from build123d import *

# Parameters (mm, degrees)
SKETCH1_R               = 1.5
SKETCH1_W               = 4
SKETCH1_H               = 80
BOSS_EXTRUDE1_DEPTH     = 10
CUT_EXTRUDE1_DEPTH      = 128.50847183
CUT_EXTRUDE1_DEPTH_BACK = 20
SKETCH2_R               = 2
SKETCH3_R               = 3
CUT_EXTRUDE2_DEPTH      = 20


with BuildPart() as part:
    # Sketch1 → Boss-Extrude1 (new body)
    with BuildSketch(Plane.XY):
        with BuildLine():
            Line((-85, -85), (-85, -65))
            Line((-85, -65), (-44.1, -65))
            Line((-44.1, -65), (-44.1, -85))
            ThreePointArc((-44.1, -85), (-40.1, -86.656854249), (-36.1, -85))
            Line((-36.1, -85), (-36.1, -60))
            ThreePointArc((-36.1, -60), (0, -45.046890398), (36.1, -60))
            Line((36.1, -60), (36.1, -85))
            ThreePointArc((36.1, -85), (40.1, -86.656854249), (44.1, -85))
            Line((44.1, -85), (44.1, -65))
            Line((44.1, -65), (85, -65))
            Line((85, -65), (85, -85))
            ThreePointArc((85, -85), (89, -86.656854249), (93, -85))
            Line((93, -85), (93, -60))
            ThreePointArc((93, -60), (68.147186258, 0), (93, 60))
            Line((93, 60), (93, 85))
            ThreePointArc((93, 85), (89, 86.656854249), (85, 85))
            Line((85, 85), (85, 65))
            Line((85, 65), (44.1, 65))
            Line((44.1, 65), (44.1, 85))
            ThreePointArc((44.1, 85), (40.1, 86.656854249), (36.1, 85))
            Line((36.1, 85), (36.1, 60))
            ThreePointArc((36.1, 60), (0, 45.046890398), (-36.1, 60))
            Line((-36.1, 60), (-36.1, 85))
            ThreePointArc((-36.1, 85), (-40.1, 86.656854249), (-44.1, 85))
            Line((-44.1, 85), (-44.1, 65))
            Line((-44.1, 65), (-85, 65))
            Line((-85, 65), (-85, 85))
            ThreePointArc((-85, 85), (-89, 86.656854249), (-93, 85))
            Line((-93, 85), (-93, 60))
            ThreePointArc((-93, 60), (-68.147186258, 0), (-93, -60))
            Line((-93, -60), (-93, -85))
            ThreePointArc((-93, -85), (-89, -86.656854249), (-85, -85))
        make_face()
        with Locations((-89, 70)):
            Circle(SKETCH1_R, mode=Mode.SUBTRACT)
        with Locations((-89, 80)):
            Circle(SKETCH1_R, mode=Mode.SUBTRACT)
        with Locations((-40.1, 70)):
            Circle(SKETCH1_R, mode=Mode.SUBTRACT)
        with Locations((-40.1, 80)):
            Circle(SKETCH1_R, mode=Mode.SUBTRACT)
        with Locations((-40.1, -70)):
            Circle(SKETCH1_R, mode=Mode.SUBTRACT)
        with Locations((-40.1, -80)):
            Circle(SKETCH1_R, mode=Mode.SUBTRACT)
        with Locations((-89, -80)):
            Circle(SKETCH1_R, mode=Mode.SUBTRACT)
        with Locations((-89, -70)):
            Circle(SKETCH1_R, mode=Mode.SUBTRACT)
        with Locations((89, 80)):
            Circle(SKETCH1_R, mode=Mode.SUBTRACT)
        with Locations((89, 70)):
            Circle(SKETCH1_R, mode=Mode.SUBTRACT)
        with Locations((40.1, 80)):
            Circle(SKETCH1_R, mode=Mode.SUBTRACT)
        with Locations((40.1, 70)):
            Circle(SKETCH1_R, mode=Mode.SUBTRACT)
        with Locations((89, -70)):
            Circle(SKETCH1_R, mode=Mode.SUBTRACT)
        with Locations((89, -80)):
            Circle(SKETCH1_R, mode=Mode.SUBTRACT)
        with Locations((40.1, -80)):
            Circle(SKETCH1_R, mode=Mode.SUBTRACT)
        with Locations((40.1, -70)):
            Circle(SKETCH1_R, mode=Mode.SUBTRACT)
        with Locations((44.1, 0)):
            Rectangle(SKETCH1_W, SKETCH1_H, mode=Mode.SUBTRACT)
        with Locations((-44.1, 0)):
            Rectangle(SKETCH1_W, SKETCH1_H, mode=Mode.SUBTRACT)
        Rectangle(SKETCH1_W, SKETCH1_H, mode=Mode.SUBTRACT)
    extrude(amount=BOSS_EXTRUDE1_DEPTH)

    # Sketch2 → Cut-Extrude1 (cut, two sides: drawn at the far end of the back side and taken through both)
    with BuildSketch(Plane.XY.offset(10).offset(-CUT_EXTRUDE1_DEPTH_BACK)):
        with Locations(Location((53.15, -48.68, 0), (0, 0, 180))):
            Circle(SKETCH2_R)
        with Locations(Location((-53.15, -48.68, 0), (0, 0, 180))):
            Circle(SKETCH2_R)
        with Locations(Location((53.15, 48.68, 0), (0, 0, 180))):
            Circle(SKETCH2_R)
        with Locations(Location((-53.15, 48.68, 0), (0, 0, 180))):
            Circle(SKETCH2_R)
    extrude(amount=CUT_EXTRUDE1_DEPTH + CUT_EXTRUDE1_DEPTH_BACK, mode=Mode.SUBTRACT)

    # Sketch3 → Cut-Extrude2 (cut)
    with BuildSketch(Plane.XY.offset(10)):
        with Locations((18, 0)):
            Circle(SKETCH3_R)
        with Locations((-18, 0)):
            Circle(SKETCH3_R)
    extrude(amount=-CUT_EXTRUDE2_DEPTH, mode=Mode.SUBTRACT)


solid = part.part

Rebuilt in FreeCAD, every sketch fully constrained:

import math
import FreeCAD as App
import Part
import Sketcher
from FreeCAD import Vector
Q = App.Units.Quantity

doc = App.newDocument("Part")
body = doc.addObject("PartDesign::Body", "Body")

# Sketch on XY plane
sketch1 = doc.addObject("Sketcher::SketchObject", "Sketch")
body.addObject(sketch1)
sketch1.AttachmentSupport = (doc.XY_Plane, [""])
sketch1.MapMode = "FlatFace"
sketch1.addGeometry(Part.LineSegment(Vector(-85, -85, 0), Vector(-85, -65, 0)), False)
sketch1.addGeometry(Part.LineSegment(Vector(-85, -65, 0), Vector(-44.1, -65, 0)), False)
sketch1.addGeometry(Part.LineSegment(Vector(-44.1, -65, 0), Vector(-44.1, -85, 0)), False)
sketch1.addGeometry(Part.ArcOfCircle(Part.Circle(Vector(-40.1, -81, 0), Vector(0, 0, 1), 5.7), math.radians(-135), math.radians(-45)), False)
sketch1.addGeometry(Part.LineSegment(Vector(-36.1, -85, 0), Vector(-36.1, -60, 0)), False)
sketch1.addGeometry(Part.ArcOfCircle(Part.Circle(Vector(0, -96.1, 0), Vector(0, 0, 1), 51.1), math.radians(45), math.radians(135)), False)
sketch1.addGeometry(Part.LineSegment(Vector(36.1, -60, 0), Vector(36.1, -85, 0)), False)
sketch1.addGeometry(Part.ArcOfCircle(Part.Circle(Vector(40.1, -81, 0), Vector(0, 0, 1), 5.7), math.radians(-135), math.radians(-45)), False)
sketch1.addGeometry(Part.LineSegment(Vector(44.1, -85, 0), Vector(44.1, -65, 0)), False)
sketch1.addGeometry(Part.LineSegment(Vector(44.1, -65, 0), Vector(85, -65, 0)), False)
sketch1.addGeometry(Part.LineSegment(Vector(85, -65, 0), Vector(85, -85, 0)), False)
sketch1.addGeometry(Part.ArcOfCircle(Part.Circle(Vector(89, -81, 0), Vector(0, 0, 1), 5.7), math.radians(-135), math.radians(-45)), False)
sketch1.addGeometry(Part.LineSegment(Vector(93, -85, 0), Vector(93, -60, 0)), False)
sketch1.addGeometry(Part.ArcOfCircle(Part.Circle(Vector(153, 0, 0), Vector(0, 0, 1), 84.9), math.radians(135), math.radians(225)), False)
sketch1.addGeometry(Part.LineSegment(Vector(93, 60, 0), Vector(93, 85, 0)), False)
sketch1.addGeometry(Part.ArcOfCircle(Part.Circle(Vector(89, 81, 0), Vector(0, 0, 1), 5.7), math.radians(45), math.radians(135)), False)
sketch1.addGeometry(Part.LineSegment(Vector(85, 85, 0), Vector(85, 65, 0)), False)
sketch1.addGeometry(Part.LineSegment(Vector(85, 65, 0), Vector(44.1, 65, 0)), False)
sketch1.addGeometry(Part.LineSegment(Vector(44.1, 65, 0), Vector(44.1, 85, 0)), False)
sketch1.addGeometry(Part.ArcOfCircle(Part.Circle(Vector(40.1, 81, 0), Vector(0, 0, 1), 5.7), math.radians(45), math.radians(135)), False)
sketch1.addGeometry(Part.LineSegment(Vector(36.1, 85, 0), Vector(36.1, 60, 0)), False)
sketch1.addGeometry(Part.ArcOfCircle(Part.Circle(Vector(0, 96.1, 0), Vector(0, 0, 1), 51.1), math.radians(-135), math.radians(-45)), False)
sketch1.addGeometry(Part.LineSegment(Vector(-36.1, 60, 0), Vector(-36.1, 85, 0)), False)
sketch1.addGeometry(Part.ArcOfCircle(Part.Circle(Vector(-40.1, 81, 0), Vector(0, 0, 1), 5.7), math.radians(45), math.radians(135)), False)
sketch1.addGeometry(Part.LineSegment(Vector(-44.1, 85, 0), Vector(-44.1, 65, 0)), False)
sketch1.addGeometry(Part.LineSegment(Vector(-44.1, 65, 0), Vector(-85, 65, 0)), False)
sketch1.addGeometry(Part.LineSegment(Vector(-85, 65, 0), Vector(-85, 85, 0)), False)
sketch1.addGeometry(Part.ArcOfCircle(Part.Circle(Vector(-89, 81, 0), Vector(0, 0, 1), 5.7), math.radians(45), math.radians(135)), False)
sketch1.addGeometry(Part.LineSegment(Vector(-93, 85, 0), Vector(-93, 60, 0)), False)
sketch1.addGeometry(Part.ArcOfCircle(Part.Circle(Vector(-153, 0, 0), Vector(0, 0, 1), 84.9), math.radians(-45), math.radians(45)), False)
sketch1.addGeometry(Part.LineSegment(Vector(-93, -60, 0), Vector(-93, -85, 0)), False)
sketch1.addGeometry(Part.ArcOfCircle(Part.Circle(Vector(-89, -81, 0), Vector(0, 0, 1), 5.7), math.radians(-135), math.radians(-45)), False)
sketch1.addGeometry(Part.Circle(Vector(-89, -80, 0), Vector(0, 0, 1), 1.5), False)
sketch1.addGeometry(Part.Circle(Vector(-89, -70, 0), Vector(0, 0, 1), 1.5), False)
sketch1.addGeometry(Part.Circle(Vector(-40.1, -80, 0), Vector(0, 0, 1), 1.5), False)
sketch1.addGeometry(Part.Circle(Vector(-40.1, -70, 0), Vector(0, 0, 1), 1.5), False)
sketch1.addGeometry(Part.Circle(Vector(40.1, -80, 0), Vector(0, 0, 1), 1.5), False)
sketch1.addGeometry(Part.Circle(Vector(40.1, -70, 0), Vector(0, 0, 1), 1.5), False)
sketch1.addGeometry(Part.Circle(Vector(89, -80, 0), Vector(0, 0, 1), 1.5), False)
sketch1.addGeometry(Part.Circle(Vector(89, -70, 0), Vector(0, 0, 1), 1.5), False)
sketch1.addGeometry(Part.LineSegment(Vector(-42.1, -40, 0), Vector(-46.1, -40, 0)), False)
sketch1.addGeometry(Part.LineSegment(Vector(-46.1, -40, 0), Vector(-46.1, 40, 0)), False)
sketch1.addGeometry(Part.LineSegment(Vector(-46.1, 40, 0), Vector(-42.1, 40, 0)), False)
sketch1.addGeometry(Part.LineSegment(Vector(-42.1, 40, 0), Vector(-42.1, -40, 0)), False)
sketch1.addGeometry(Part.Circle(Vector(-89, 70, 0), Vector(0, 0, 1), 1.5), False)
sketch1.addGeometry(Part.Circle(Vector(-89, 80, 0), Vector(0, 0, 1), 1.5), False)
sketch1.addGeometry(Part.Circle(Vector(-40.1, 70, 0), Vector(0, 0, 1), 1.5), False)
sketch1.addGeometry(Part.Circle(Vector(-40.1, 80, 0), Vector(0, 0, 1), 1.5), False)
sketch1.addGeometry(Part.LineSegment(Vector(2, -40, 0), Vector(-2, -40, 0)), False)
sketch1.addGeometry(Part.LineSegment(Vector(-2, -40, 0), Vector(-2, 40, 0)), False)
sketch1.addGeometry(Part.LineSegment(Vector(-2, 40, 0), Vector(2, 40, 0)), False)
sketch1.addGeometry(Part.LineSegment(Vector(2, 40, 0), Vector(2, -40, 0)), False)
sketch1.addGeometry(Part.LineSegment(Vector(46.1, -40, 0), Vector(42.1, -40, 0)), False)
sketch1.addGeometry(Part.LineSegment(Vector(42.1, -40, 0), Vector(42.1, 40, 0)), False)
sketch1.addGeometry(Part.LineSegment(Vector(42.1, 40, 0), Vector(46.1, 40, 0)), False)
sketch1.addGeometry(Part.LineSegment(Vector(46.1, 40, 0), Vector(46.1, -40, 0)), False)
sketch1.addGeometry(Part.Circle(Vector(40.1, 70, 0), Vector(0, 0, 1), 1.5), False)
sketch1.addGeometry(Part.Circle(Vector(40.1, 80, 0), Vector(0, 0, 1), 1.5), False)
sketch1.addGeometry(Part.Circle(Vector(89, 70, 0), Vector(0, 0, 1), 1.5), False)
sketch1.addGeometry(Part.Circle(Vector(89, 80, 0), Vector(0, 0, 1), 1.5), False)
sketch1.addConstraint(Sketcher.Constraint("Coincident", 0, 2, 1, 1))
sketch1.addConstraint(Sketcher.Constraint("Coincident", 1, 2, 2, 1))
sketch1.addConstraint(Sketcher.Constraint("Coincident", 2, 2, 3, 1))
sketch1.addConstraint(Sketcher.Constraint("Coincident", 3, 2, 4, 1))
sketch1.addConstraint(Sketcher.Constraint("Coincident", 4, 2, 5, 2))
sketch1.addConstraint(Sketcher.Constraint("Coincident", 5, 1, 6, 1))
sketch1.addConstraint(Sketcher.Constraint("Coincident", 6, 2, 7, 1))
sketch1.addConstraint(Sketcher.Constraint("Coincident", 7, 2, 8, 1))
sketch1.addConstraint(Sketcher.Constraint("Coincident", 8, 2, 9, 1))
sketch1.addConstraint(Sketcher.Constraint("Coincident", 9, 2, 10, 1))
sketch1.addConstraint(Sketcher.Constraint("Coincident", 10, 2, 11, 1))
sketch1.addConstraint(Sketcher.Constraint("Coincident", 11, 2, 12, 1))
sketch1.addConstraint(Sketcher.Constraint("Coincident", 12, 2, 13, 2))
sketch1.addConstraint(Sketcher.Constraint("Coincident", 13, 1, 14, 1))
sketch1.addConstraint(Sketcher.Constraint("Coincident", 14, 2, 15, 1))
sketch1.addConstraint(Sketcher.Constraint("Coincident", 15, 2, 16, 1))
sketch1.addConstraint(Sketcher.Constraint("Coincident", 16, 2, 17, 1))
sketch1.addConstraint(Sketcher.Constraint("Coincident", 17, 2, 18, 1))
sketch1.addConstraint(Sketcher.Constraint("Coincident", 18, 2, 19, 1))
sketch1.addConstraint(Sketcher.Constraint("Coincident", 19, 2, 20, 1))
sketch1.addConstraint(Sketcher.Constraint("Coincident", 20, 2, 21, 2))
sketch1.addConstraint(Sketcher.Constraint("Coincident", 21, 1, 22, 1))
sketch1.addConstraint(Sketcher.Constraint("Coincident", 22, 2, 23, 1))
sketch1.addConstraint(Sketcher.Constraint("Coincident", 23, 2, 24, 1))
sketch1.addConstraint(Sketcher.Constraint("Coincident", 24, 2, 25, 1))
sketch1.addConstraint(Sketcher.Constraint("Coincident", 25, 2, 26, 1))
sketch1.addConstraint(Sketcher.Constraint("Coincident", 26, 2, 27, 1))
sketch1.addConstraint(Sketcher.Constraint("Coincident", 27, 2, 28, 1))
sketch1.addConstraint(Sketcher.Constraint("Coincident", 28, 2, 29, 2))
sketch1.addConstraint(Sketcher.Constraint("Coincident", 29, 1, 30, 1))
sketch1.addConstraint(Sketcher.Constraint("Coincident", 30, 2, 31, 1))
sketch1.addConstraint(Sketcher.Constraint("Coincident", 31, 2, 0, 1))
sketch1.addConstraint(Sketcher.Constraint("Coincident", 40, 2, 41, 1))
sketch1.addConstraint(Sketcher.Constraint("Coincident", 41, 2, 42, 1))
sketch1.addConstraint(Sketcher.Constraint("Coincident", 42, 2, 43, 1))
sketch1.addConstraint(Sketcher.Constraint("Coincident", 43, 2, 40, 1))
sketch1.addConstraint(Sketcher.Constraint("Coincident", 48, 2, 49, 1))
sketch1.addConstraint(Sketcher.Constraint("Coincident", 49, 2, 50, 1))
sketch1.addConstraint(Sketcher.Constraint("Coincident", 50, 2, 51, 1))
sketch1.addConstraint(Sketcher.Constraint("Coincident", 51, 2, 48, 1))
sketch1.addConstraint(Sketcher.Constraint("Coincident", 52, 2, 53, 1))
sketch1.addConstraint(Sketcher.Constraint("Coincident", 53, 2, 54, 1))
sketch1.addConstraint(Sketcher.Constraint("Coincident", 54, 2, 55, 1))
sketch1.addConstraint(Sketcher.Constraint("Coincident", 55, 2, 52, 1))
sketch1.addConstraint(Sketcher.Constraint("Vertical", 0))
sketch1.addConstraint(Sketcher.Constraint("Horizontal", 1))
sketch1.addConstraint(Sketcher.Constraint("Vertical", 2))
sketch1.addConstraint(Sketcher.Constraint("Vertical", 4))
sketch1.addConstraint(Sketcher.Constraint("Vertical", 6))
sketch1.addConstraint(Sketcher.Constraint("Vertical", 8))
sketch1.addConstraint(Sketcher.Constraint("Horizontal", 9))
sketch1.addConstraint(Sketcher.Constraint("Vertical", 10))
sketch1.addConstraint(Sketcher.Constraint("Vertical", 12))
sketch1.addConstraint(Sketcher.Constraint("Vertical", 14))
sketch1.addConstraint(Sketcher.Constraint("Vertical", 16))
sketch1.addConstraint(Sketcher.Constraint("Horizontal", 17))
sketch1.addConstraint(Sketcher.Constraint("Vertical", 18))
sketch1.addConstraint(Sketcher.Constraint("Vertical", 20))
sketch1.addConstraint(Sketcher.Constraint("Vertical", 22))
sketch1.addConstraint(Sketcher.Constraint("Vertical", 24))
sketch1.addConstraint(Sketcher.Constraint("Horizontal", 25))
sketch1.addConstraint(Sketcher.Constraint("Vertical", 26))
sketch1.addConstraint(Sketcher.Constraint("Vertical", 28))
sketch1.addConstraint(Sketcher.Constraint("Vertical", 30))
sketch1.addConstraint(Sketcher.Constraint("Horizontal", 40))
sketch1.addConstraint(Sketcher.Constraint("Vertical", 41))
sketch1.addConstraint(Sketcher.Constraint("Horizontal", 42))
sketch1.addConstraint(Sketcher.Constraint("Vertical", 43))
sketch1.addConstraint(Sketcher.Constraint("Horizontal", 48))
sketch1.addConstraint(Sketcher.Constraint("Vertical", 49))
sketch1.addConstraint(Sketcher.Constraint("Horizontal", 50))
sketch1.addConstraint(Sketcher.Constraint("Vertical", 51))
sketch1.addConstraint(Sketcher.Constraint("Horizontal", 52))
sketch1.addConstraint(Sketcher.Constraint("Vertical", 53))
sketch1.addConstraint(Sketcher.Constraint("Horizontal", 54))
sketch1.addConstraint(Sketcher.Constraint("Vertical", 55))
sketch1.addConstraint(Sketcher.Constraint("Equal", 3, 7))
sketch1.addConstraint(Sketcher.Constraint("Equal", 7, 11))
sketch1.addConstraint(Sketcher.Constraint("Equal", 11, 15))
sketch1.addConstraint(Sketcher.Constraint("Equal", 15, 19))
sketch1.addConstraint(Sketcher.Constraint("Equal", 5, 21))
sketch1.addConstraint(Sketcher.Constraint("Equal", 19, 23))
sketch1.addConstraint(Sketcher.Constraint("Equal", 23, 27))
sketch1.addConstraint(Sketcher.Constraint("Equal", 13, 29))
sketch1.addConstraint(Sketcher.Constraint("Equal", 27, 31))
sketch1.addConstraint(Sketcher.Constraint("Equal", 32, 33))
sketch1.addConstraint(Sketcher.Constraint("Equal", 33, 34))
sketch1.addConstraint(Sketcher.Constraint("Equal", 34, 35))
sketch1.addConstraint(Sketcher.Constraint("Equal", 35, 36))
sketch1.addConstraint(Sketcher.Constraint("Equal", 36, 37))
sketch1.addConstraint(Sketcher.Constraint("Equal", 37, 38))
sketch1.addConstraint(Sketcher.Constraint("Equal", 38, 39))
sketch1.addConstraint(Sketcher.Constraint("Equal", 39, 44))
sketch1.addConstraint(Sketcher.Constraint("Equal", 44, 45))
sketch1.addConstraint(Sketcher.Constraint("Equal", 45, 46))
sketch1.addConstraint(Sketcher.Constraint("Equal", 46, 47))
sketch1.addConstraint(Sketcher.Constraint("Equal", 47, 56))
sketch1.addConstraint(Sketcher.Constraint("Equal", 56, 57))
sketch1.addConstraint(Sketcher.Constraint("Equal", 57, 58))
sketch1.addConstraint(Sketcher.Constraint("Equal", 58, 59))
sketch1.addConstraint(Sketcher.Constraint("Symmetric", 3, 3, 19, 3, -1, 1))
sketch1.addConstraint(Sketcher.Constraint("Symmetric", 5, 3, 21, 3, -1, 1))
sketch1.addConstraint(Sketcher.Constraint("Symmetric", 7, 3, 23, 3, -1, 1))
sketch1.addConstraint(Sketcher.Constraint("Symmetric", 11, 3, 27, 3, -1, 1))
sketch1.addConstraint(Sketcher.Constraint("Symmetric", 13, 3, 29, 3, -1, 1))
sketch1.addConstraint(Sketcher.Constraint("Symmetric", 15, 3, 31, 3, -1, 1))
sketch1.addConstraint(Sketcher.Constraint("Symmetric", 39, 3, 44, 3, -1, 1))
sketch1.addConstraint(Sketcher.Constraint("Symmetric", 38, 3, 45, 3, -1, 1))
sketch1.addConstraint(Sketcher.Constraint("Symmetric", 37, 3, 46, 3, -1, 1))
sketch1.addConstraint(Sketcher.Constraint("Symmetric", 36, 3, 47, 3, -1, 1))
sketch1.addConstraint(Sketcher.Constraint("Symmetric", 35, 3, 56, 3, -1, 1))
sketch1.addConstraint(Sketcher.Constraint("Symmetric", 34, 3, 57, 3, -1, 1))
sketch1.addConstraint(Sketcher.Constraint("Symmetric", 33, 3, 58, 3, -1, 1))
sketch1.addConstraint(Sketcher.Constraint("Symmetric", 32, 3, 59, 3, -1, 1))
sketch1.addConstraint(Sketcher.Constraint("Symmetric", 0, 2, 16, 2, -1, 1))
sketch1.addConstraint(Sketcher.Constraint("Symmetric", 8, 2, 24, 2, -1, 1))
sketch1.addConstraint(Sketcher.Constraint("Symmetric", 48, 2, 50, 2, -1, 1))
sketch1.addConstraint(Sketcher.Constraint("Symmetric", 42, 2, 52, 2, -1, 1))
sketch1.addConstraint(Sketcher.Constraint("Symmetric", 40, 2, 54, 2, -1, 1))
sketch1.addConstraint(Sketcher.Constraint("Symmetric", 3, 3, 7, 3, -2))
sketch1.addConstraint(Sketcher.Constraint("Symmetric", 15, 3, 27, 3, -2))
sketch1.addConstraint(Sketcher.Constraint("Symmetric", 34, 3, 36, 3, -2))
sketch1.addConstraint(Sketcher.Constraint("Symmetric", 35, 3, 37, 3, -2))
sketch1.addConstraint(Sketcher.Constraint("Symmetric", 32, 3, 38, 3, -2))
sketch1.addConstraint(Sketcher.Constraint("Symmetric", 33, 3, 39, 3, -2))
sketch1.addConstraint(Sketcher.Constraint("Symmetric", 4, 2, 5, 1, -2))
sketch1.addConstraint(Sketcher.Constraint("Symmetric", 1, 2, 8, 2, -2))
sketch1.addConstraint(Sketcher.Constraint("Symmetric", 13, 1, 28, 2, -2))
sketch1.addConstraint(Sketcher.Constraint("Horizontal", 7, 3, 11, 3))
sketch1.addConstraint(Sketcher.Constraint("Horizontal", 32, 3, 34, 3))
sketch1.addConstraint(Sketcher.Constraint("Horizontal", 33, 3, 35, 3))
sketch1.addConstraint(Sketcher.Constraint("Horizontal", 2, 2, 3, 2))
sketch1.addConstraint(Sketcher.Constraint("Horizontal", 7, 2, 10, 2))
sketch1.addConstraint(Sketcher.Constraint("Horizontal", 10, 2, 11, 2))
sketch1.addConstraint(Sketcher.Constraint("Horizontal", 5, 1, 12, 2))
sketch1.addConstraint(Sketcher.Constraint("Horizontal", 14, 2, 15, 2))
sketch1.addConstraint(Sketcher.Constraint("Horizontal", 15, 2, 18, 2))
sketch1.addConstraint(Sketcher.Constraint("Horizontal", 18, 2, 19, 2))
sketch1.addConstraint(Sketcher.Constraint("Horizontal", 13, 1, 20, 2))
sketch1.addConstraint(Sketcher.Constraint("Horizontal", 20, 2, 21, 1))
sketch1.addConstraint(Sketcher.Constraint("Horizontal", 23, 2, 26, 2))
sketch1.addConstraint(Sketcher.Constraint("Horizontal", 12, 2, 29, 1))
sketch1.addConstraint(Sketcher.Constraint("Horizontal", 43, 2, 48, 2))
sketch1.addConstraint(Sketcher.Constraint("Horizontal", 42, 2, 49, 2))
sketch1.addConstraint(Sketcher.Constraint("Vertical", 31, 3, 32, 3))
sketch1.addConstraint(Sketcher.Constraint("Vertical", 32, 3, 33, 3))
sketch1.addConstraint(Sketcher.Constraint("Vertical", 23, 3, 34, 3))
sketch1.addConstraint(Sketcher.Constraint("Vertical", 34, 3, 35, 3))
sketch1.addConstraint(Sketcher.Constraint("Equal", 42, 48))
sketch1.addConstraint(Sketcher.Constraint("Diameter", 32, Q("3 mm")))
sketch1.addConstraint(Sketcher.Constraint("DistanceX", 40, 2, 40, 1, Q("4 mm")))
sketch1.addConstraint(Sketcher.Constraint("DistanceY", 0, 1, 0, 2, Q("20 mm")))
sketch1.addConstraint(Sketcher.Constraint("DistanceY", 4, 1, 4, 2, Q("25 mm")))
sketch1.addConstraint(Sketcher.Constraint("DistanceY", 41, 1, 41, 2, Q("80 mm")))
sketch1.addConstraint(Sketcher.Constraint("DistanceX", 1, 1, 1, 2, Q("40.9 mm")))
sketch1.addConstraint(Sketcher.Constraint("DistanceY", 3, 3, -1, 1, Q("81 mm")))
sketch1.addConstraint(Sketcher.Constraint("DistanceX", -1, 1, 11, 3, Q("89 mm")))
sketch1.addConstraint(Sketcher.Constraint("DistanceX", -1, 1, 13, 3, Q("153 mm")))
sketch1.addConstraint(Sketcher.Constraint("DistanceY", 32, 3, -1, 1, Q("80 mm")))
sketch1.addConstraint(Sketcher.Constraint("DistanceY", 33, 3, -1, 1, Q("70 mm")))
sketch1.addConstraint(Sketcher.Constraint("DistanceX", 0, 2, -1, 1, Q("85 mm")))
sketch1.addConstraint(Sketcher.Constraint("DistanceY", 0, 2, -1, 1, Q("65 mm")))
sketch1.addConstraint(Sketcher.Constraint("DistanceY", 5, 3, -1, 1, Q("96.1 mm")))
sketch1.addConstraint(Sketcher.Constraint("DistanceX", 40, 2, -1, 1, Q("46.1 mm")))
pad1 = doc.addObject("PartDesign::Pad", "Pad")
body.addObject(pad1)
pad1.Profile = sketch1
pad1.Length = 10

# Sketch on XY plane
sketch2 = doc.addObject("Sketcher::SketchObject", "Sketch001")
body.addObject(sketch2)
sketch2.AttachmentSupport = (doc.XY_Plane, [""])
sketch2.MapMode = "FlatFace"
sketch2.AttachmentOffset = App.Placement(Vector(0, 0, 10), App.Rotation())
sketch2.addGeometry(Part.Circle(Vector(53.1, -48.7, 0), Vector(0, 0, 1), 2), False)
sketch2.addGeometry(Part.Circle(Vector(-53.1, -48.7, 0), Vector(0, 0, 1), 2), False)
sketch2.addGeometry(Part.Circle(Vector(53.1, 48.7, 0), Vector(0, 0, 1), 2), False)
sketch2.addGeometry(Part.Circle(Vector(-53.1, 48.7, 0), Vector(0, 0, 1), 2), False)
sketch2.addConstraint(Sketcher.Constraint("Equal", 0, 1))
sketch2.addConstraint(Sketcher.Constraint("Equal", 1, 2))
sketch2.addConstraint(Sketcher.Constraint("Equal", 2, 3))
sketch2.addConstraint(Sketcher.Constraint("Symmetric", 1, 3, 2, 3, -1, 1))
sketch2.addConstraint(Sketcher.Constraint("Symmetric", 0, 3, 3, 3, -1, 1))
sketch2.addConstraint(Sketcher.Constraint("Symmetric", 0, 3, 1, 3, -2))
sketch2.addConstraint(Sketcher.Constraint("Diameter", 0, Q("4 mm")))
sketch2.addConstraint(Sketcher.Constraint("DistanceX", 1, 3, 0, 3, Q("106.3 mm")))
sketch2.addConstraint(Sketcher.Constraint("DistanceY", 0, 3, -1, 1, Q("48.68 mm")))
pocket1 = doc.addObject("PartDesign::Pocket", "Pocket")
body.addObject(pocket1)
pocket1.Profile = sketch2
pocket1.Type = "ThroughAll"
pocket1.Midplane = True

# Sketch on XY plane
sketch3 = doc.addObject("Sketcher::SketchObject", "Sketch002")
body.addObject(sketch3)
sketch3.AttachmentSupport = (doc.XY_Plane, [""])
sketch3.MapMode = "FlatFace"
sketch3.AttachmentOffset = App.Placement(Vector(0, 0, 10), App.Rotation())
sketch3.addGeometry(Part.Circle(Vector(18, 0, 0), Vector(0, 0, 1), 3), False)
sketch3.addGeometry(Part.Circle(Vector(-18, 0, 0), Vector(0, 0, 1), 3), False)
sketch3.addConstraint(Sketcher.Constraint("Equal", 0, 1))
sketch3.addConstraint(Sketcher.Constraint("Symmetric", 0, 3, 1, 3, -1, 1))
sketch3.addConstraint(Sketcher.Constraint("PointOnObject", 0, 3, -1))
sketch3.addConstraint(Sketcher.Constraint("Diameter", 0, Q("6 mm")))
sketch3.addConstraint(Sketcher.Constraint("DistanceX", -1, 1, 0, 3, Q("18 mm")))
pocket2 = doc.addObject("PartDesign::Pocket", "Pocket001")
body.addObject(pocket2)
pocket2.Profile = sketch3
pocket2.Length = 20

doc.recompute()
